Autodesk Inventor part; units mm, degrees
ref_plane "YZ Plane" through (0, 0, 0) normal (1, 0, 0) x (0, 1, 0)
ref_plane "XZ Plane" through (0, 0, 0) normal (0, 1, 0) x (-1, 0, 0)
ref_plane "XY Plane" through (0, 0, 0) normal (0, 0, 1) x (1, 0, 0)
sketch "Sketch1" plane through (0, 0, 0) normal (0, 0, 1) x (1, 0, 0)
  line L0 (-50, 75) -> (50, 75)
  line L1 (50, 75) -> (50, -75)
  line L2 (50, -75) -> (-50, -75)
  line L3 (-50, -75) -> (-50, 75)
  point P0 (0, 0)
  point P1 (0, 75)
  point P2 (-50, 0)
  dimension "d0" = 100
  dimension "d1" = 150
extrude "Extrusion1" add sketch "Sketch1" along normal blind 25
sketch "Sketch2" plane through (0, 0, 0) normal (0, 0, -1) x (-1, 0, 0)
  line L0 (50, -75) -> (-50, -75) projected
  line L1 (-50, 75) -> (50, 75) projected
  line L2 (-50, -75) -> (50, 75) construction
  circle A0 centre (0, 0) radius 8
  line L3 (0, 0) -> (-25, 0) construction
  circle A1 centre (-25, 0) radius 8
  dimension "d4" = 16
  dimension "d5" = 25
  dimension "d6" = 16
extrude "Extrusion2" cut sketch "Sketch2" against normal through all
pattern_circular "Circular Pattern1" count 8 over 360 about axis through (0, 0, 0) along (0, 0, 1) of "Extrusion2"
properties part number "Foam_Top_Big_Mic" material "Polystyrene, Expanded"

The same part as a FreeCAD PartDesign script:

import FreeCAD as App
import Part
import Sketcher

V = App.Vector


def add_polygon(sketch, points):
    """Adds a closed chain of lines whose ends are joined by coincident constraints."""
    first, n = sketch.GeometryCount, len(points)
    for a, b in zip(points, points[1:] + points[:1]):
        sketch.addGeometry(Part.LineSegment(App.Vector(*a, 0), App.Vector(*b, 0)), False)
    for i in range(n):
        sketch.addConstraint(Sketcher.Constraint("Coincident", first + i, 2, first + (i + 1) % n, 1))

doc = App.newDocument("Part")
body = doc.addObject("PartDesign::Body", "Body")

sketch1 = doc.addObject("Sketcher::SketchObject", "Sketch")
body.addObject(sketch1)
sketch1.AttachmentSupport = (doc.XY_Plane, [""])
sketch1.MapMode = "FlatFace"
add_polygon(sketch1, [(50, 75), (-50, 75), (-50, -75), (50, -75)])
sketch1.addConstraint([
    Sketcher.Constraint("Horizontal", 0),
    Sketcher.Constraint("Vertical", 1),
    Sketcher.Constraint("Horizontal", 2),
    Sketcher.Constraint("Vertical", 3),
    Sketcher.Constraint("Symmetric", 0, 2, 2, 2, -1, 1),
    Sketcher.Constraint("DistanceX", 0, 2, 0, 1, 100.0),
    Sketcher.Constraint("DistanceY", 1, 2, 1, 1, 150.0),
])
pad1 = doc.addObject("PartDesign::Pad", "Pad")
body.addObject(pad1)
pad1.Profile = sketch1
pad1.Length = 25

sketch2 = doc.addObject("Sketcher::SketchObject", "Sketch001")
body.addObject(sketch2)
sketch2.AttachmentSupport = (doc.XY_Plane, [""])
sketch2.MapMode = "FlatFace"
sketch2.addGeometry([
    Part.Circle(V(0, 0, 0), V(0, 0, 1), 8),
    Part.Circle(V(25, 0, 0), V(0, 0, 1), 8),
], False)
sketch2.addConstraint([
    Sketcher.Constraint("Coincident", 0, 3, -1, 1),
    Sketcher.Constraint("Equal", 0, 1),
    Sketcher.Constraint("PointOnObject", 1, 3, -1),
    Sketcher.Constraint("Diameter", 0, 16.0),
    Sketcher.Constraint("DistanceX", -1, 1, 1, 3, 25.0),
])
pocket1 = doc.addObject("PartDesign::Pocket", "Pocket")
body.addObject(pocket1)
pocket1.Profile = sketch2
pocket1.Type = "ThroughAll"
pocket1.Reversed = True
doc.recompute()

polarpattern = doc.addObject("PartDesign::PolarPattern", "PolarPattern")
body.addObject(polarpattern)
polarpattern.Originals = [pocket1]
polarpattern.Axis = (doc.Z_Axis, [""])
polarpattern.Angle = 360
polarpattern.Occurrences = 8
body.Tip = polarpattern

doc.recompute()
